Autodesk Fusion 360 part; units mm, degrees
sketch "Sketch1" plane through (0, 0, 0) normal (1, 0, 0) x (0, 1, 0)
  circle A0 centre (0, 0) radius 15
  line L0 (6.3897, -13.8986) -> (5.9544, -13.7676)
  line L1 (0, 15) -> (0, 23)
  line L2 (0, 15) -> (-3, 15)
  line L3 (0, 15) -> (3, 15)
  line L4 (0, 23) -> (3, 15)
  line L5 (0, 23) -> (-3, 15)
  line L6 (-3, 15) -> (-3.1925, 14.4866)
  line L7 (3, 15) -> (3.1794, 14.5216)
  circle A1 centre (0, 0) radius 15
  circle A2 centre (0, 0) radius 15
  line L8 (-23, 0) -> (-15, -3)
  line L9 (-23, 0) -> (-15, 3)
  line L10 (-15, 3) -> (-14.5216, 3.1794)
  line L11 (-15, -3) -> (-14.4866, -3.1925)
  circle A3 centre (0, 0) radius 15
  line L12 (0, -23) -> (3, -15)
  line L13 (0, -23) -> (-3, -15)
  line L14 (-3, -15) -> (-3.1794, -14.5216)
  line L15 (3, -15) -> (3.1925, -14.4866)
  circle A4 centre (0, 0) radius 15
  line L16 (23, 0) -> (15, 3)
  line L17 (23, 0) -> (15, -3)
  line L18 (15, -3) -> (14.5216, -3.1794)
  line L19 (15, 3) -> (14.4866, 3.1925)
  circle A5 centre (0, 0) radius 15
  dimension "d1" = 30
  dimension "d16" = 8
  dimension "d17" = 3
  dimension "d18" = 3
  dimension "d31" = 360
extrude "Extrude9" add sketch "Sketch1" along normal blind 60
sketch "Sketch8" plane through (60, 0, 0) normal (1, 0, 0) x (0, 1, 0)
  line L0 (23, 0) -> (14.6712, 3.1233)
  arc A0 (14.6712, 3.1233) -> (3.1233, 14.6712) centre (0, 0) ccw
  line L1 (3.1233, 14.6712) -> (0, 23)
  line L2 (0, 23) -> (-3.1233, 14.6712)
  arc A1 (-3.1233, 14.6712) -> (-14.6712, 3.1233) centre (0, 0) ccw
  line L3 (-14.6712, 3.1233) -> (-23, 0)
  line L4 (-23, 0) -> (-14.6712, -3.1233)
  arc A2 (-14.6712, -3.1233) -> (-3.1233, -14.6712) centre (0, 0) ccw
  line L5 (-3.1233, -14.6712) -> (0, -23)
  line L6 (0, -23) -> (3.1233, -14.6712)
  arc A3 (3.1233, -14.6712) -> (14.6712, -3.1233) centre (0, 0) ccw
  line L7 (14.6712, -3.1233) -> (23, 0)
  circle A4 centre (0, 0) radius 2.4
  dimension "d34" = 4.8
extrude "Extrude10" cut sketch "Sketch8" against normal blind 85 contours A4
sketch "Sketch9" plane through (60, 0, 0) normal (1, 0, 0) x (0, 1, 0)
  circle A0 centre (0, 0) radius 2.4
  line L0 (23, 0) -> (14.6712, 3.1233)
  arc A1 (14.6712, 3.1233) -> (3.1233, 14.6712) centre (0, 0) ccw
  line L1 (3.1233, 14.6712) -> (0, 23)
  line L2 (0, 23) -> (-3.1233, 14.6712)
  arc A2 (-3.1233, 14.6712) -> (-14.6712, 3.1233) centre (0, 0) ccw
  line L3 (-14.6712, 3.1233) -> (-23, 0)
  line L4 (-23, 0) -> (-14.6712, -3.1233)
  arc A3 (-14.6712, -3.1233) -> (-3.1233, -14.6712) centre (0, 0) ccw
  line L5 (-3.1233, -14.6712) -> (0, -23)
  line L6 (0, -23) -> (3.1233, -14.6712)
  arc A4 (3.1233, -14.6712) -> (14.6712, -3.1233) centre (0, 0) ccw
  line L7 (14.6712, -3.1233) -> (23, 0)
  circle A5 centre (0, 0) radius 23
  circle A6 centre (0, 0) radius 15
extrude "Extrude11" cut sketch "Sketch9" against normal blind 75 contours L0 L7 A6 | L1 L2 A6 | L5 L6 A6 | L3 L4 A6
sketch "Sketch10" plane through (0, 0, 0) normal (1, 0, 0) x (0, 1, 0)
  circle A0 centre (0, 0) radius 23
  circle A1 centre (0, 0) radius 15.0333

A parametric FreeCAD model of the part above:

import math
import FreeCAD as App
import Part
import Sketcher

V = App.Vector
Q = App.Units.Quantity

doc = App.newDocument("Part")
body = doc.addObject("PartDesign::Body", "Body")

# Sketch on YZ plane
sketch1 = body.newObject("Sketcher::SketchObject", "Sketch")
sketch1.AttachmentSupport = (doc.getObject("YZ_Plane"), [""])
sketch1.MapMode = "FlatFace"
sketch1.addGeometry([
    Part.LineSegment(V(14.671233, -3.123288, 0), V(23, 0, 0)),  # 0
    Part.LineSegment(V(23, 0, 0), V(15, 3, 0)),  # 1
    Part.LineSegment(V(15, 3, 0), V(14.671237, 3.12327, 0)),  # 2
    Part.ArcOfCircle(Part.Circle(V(0, 0, 0), V(0, 0, 1), 15), math.radians(12.017944), math.radians(77.981988)),  # 3
    Part.LineSegment(V(3.123288, 14.671233, 0), V(0, 23, 0)),  # 4
    Part.LineSegment(V(0, 23, 0), V(-3, 15, 0)),  # 5
    Part.LineSegment(V(-3, 15, 0), V(-3.12327, 14.671237, 0)),  # 6
    Part.ArcOfCircle(Part.Circle(V(0, 0, 0), V(0, 0, 1), 15), math.radians(102.017944), math.radians(167.981988)),  # 7
    Part.LineSegment(V(-14.671233, 3.123288, 0), V(-23, 0, 0)),  # 8
    Part.LineSegment(V(-23, 0, 0), V(-15, -3, 0)),  # 9
    Part.LineSegment(V(-15, -3, 0), V(-14.671237, -3.12327, 0)),  # 10
    Part.ArcOfCircle(Part.Circle(V(0, 0, 0), V(0, 0, 1), 15), math.radians(-167.982056), math.radians(-102.018012)),  # 11
    Part.LineSegment(V(-3.123288, -14.671233, 0), V(0, -23, 0)),  # 12
    Part.LineSegment(V(0, -23, 0), V(3, -15, 0)),  # 13
    Part.LineSegment(V(3, -15, 0), V(3.12327, -14.671237, 0)),  # 14
    Part.ArcOfCircle(Part.Circle(V(0, 0, 0), V(0, 0, 1), 15), math.radians(-77.982056), math.radians(-12.018012)),  # 15
], False)
sketch1.addConstraint([
    Sketcher.Constraint("Coincident", 0, 2, 1, 1),
    Sketcher.Constraint("Coincident", 1, 2, 2, 1),
    Sketcher.Constraint("Coincident", 2, 2, 3, 1),
    Sketcher.Constraint("Coincident", 3, 2, 4, 1),
    Sketcher.Constraint("Coincident", 4, 2, 5, 1),
    Sketcher.Constraint("Coincident", 5, 2, 6, 1),
    Sketcher.Constraint("Coincident", 6, 2, 7, 1),
    Sketcher.Constraint("Coincident", 7, 2, 8, 1),
    Sketcher.Constraint("Coincident", 8, 2, 9, 1),
    Sketcher.Constraint("Coincident", 9, 2, 10, 1),
    Sketcher.Constraint("Coincident", 10, 2, 11, 1),
    Sketcher.Constraint("Coincident", 11, 2, 12, 1),
    Sketcher.Constraint("Coincident", 12, 2, 13, 1),
    Sketcher.Constraint("Coincident", 13, 2, 14, 1),
    Sketcher.Constraint("Coincident", 14, 2, 15, 1),
    Sketcher.Constraint("Coincident", 15, 2, 0, 1),
    Sketcher.Constraint("Coincident", 3, 3, -1, 1),
    Sketcher.Constraint("Coincident", 7, 3, -1, 1),
    Sketcher.Constraint("Coincident", 11, 3, -1, 1),
    Sketcher.Constraint("Coincident", 15, 3, -1, 1),
    Sketcher.Constraint("Equal", 3, 7),
    Sketcher.Constraint("Equal", 7, 11),
    Sketcher.Constraint("Equal", 11, 15),
    Sketcher.Constraint("Symmetric", 0, 2, 8, 2, -1, 1),
    Sketcher.Constraint("Symmetric", 1, 2, 9, 2, -1, 1),
    Sketcher.Constraint("Symmetric", 4, 2, 12, 2, -1, 1),
    Sketcher.Constraint("Symmetric", 5, 2, 13, 2, -1, 1),
    Sketcher.Constraint("PointOnObject", 0, 2, -1),
    Sketcher.Constraint("PointOnObject", 4, 2, -2),
    Sketcher.Constraint("Parallel", 1, 2),
    Sketcher.Constraint("Perpendicular", 0, 4),
    Sketcher.Constraint("Perpendicular", 2, 5),
    Sketcher.Constraint("Parallel", 5, 6),
    Sketcher.Constraint("Perpendicular", 4, 8),
    Sketcher.Constraint("Parallel", 9, 10),
    Sketcher.Constraint("Perpendicular", 8, 12),
    Sketcher.Constraint("Parallel", 13, 14),
    Sketcher.Constraint("Horizontal", 3, 2, 6, 2),
    Sketcher.Constraint("Equal", 0, 4),
    Sketcher.Constraint("Equal", 1, 5),
    Sketcher.Constraint("Radius", 3, Q("15 mm")),
    Sketcher.Constraint("DistanceY", -1, 1, 1, 2, Q("3 mm")),
    Sketcher.Constraint("DistanceX", 1, 2, 0, 2, Q("8 mm")),
    Sketcher.Constraint("DistanceX", -1, 1, 0, 2, Q("23 mm")),
])
pad1 = body.newObject("PartDesign::Pad", "Pad")
pad1.Profile = sketch1
pad1.Length = 60

# Sketch on YZ plane
sketch2 = body.newObject("Sketcher::SketchObject", "Sketch001")
sketch2.AttachmentSupport = (doc.getObject("YZ_Plane"), [""])
sketch2.MapMode = "FlatFace"
sketch2.AttachmentOffset = App.Placement(V(0, 0, 60), App.Rotation())
sketch2.addGeometry(Part.Circle(V(0, 0, 0), V(0, 0, 1), 2.4), False)
sketch2.addConstraint([
    Sketcher.Constraint("Coincident", 0, 3, -1, 1),
    Sketcher.Constraint("Diameter", 0, Q("4.8 mm")),
])
pocket1 = body.newObject("PartDesign::Pocket", "Pocket")
pocket1.Profile = sketch2
pocket1.Length = 85

# Sketch on YZ plane
sketch3 = body.newObject("Sketcher::SketchObject", "Sketch002")
sketch3.AttachmentSupport = (doc.getObject("YZ_Plane"), [""])
sketch3.MapMode = "FlatFace"
sketch3.AttachmentOffset = App.Placement(V(0, 0, 60), App.Rotation())
sketch3.addGeometry([
    Part.LineSegment(V(14.6712, -3.1233, 0), V(23, 0, 0)),  # 0
    Part.LineSegment(V(23, 0, 0), V(14.6712, 3.1233, 0)),  # 1
    Part.ArcOfCircle(Part.Circle(V(0, 0, 0), V(0, 0, 1), 15), math.radians(-12.018084), math.radians(12.018084)),  # 2
    Part.LineSegment(V(3.1233, 14.6712, 0), V(0, 23, 0)),  # 3
    Part.LineSegment(V(0, 23, 0), V(-3.1233, 14.6712, 0)),  # 4
    Part.ArcOfCircle(Part.Circle(V(0, 0, 0), V(0, 0, 1), 15), math.radians(77.981916), math.radians(102.018084)),  # 5
    Part.LineSegment(V(-3.1233, -14.6712, 0), V(0, -23, 0)),  # 6
    Part.LineSegment(V(0, -23, 0), V(3.1233, -14.6712, 0)),  # 7
    Part.ArcOfCircle(Part.Circle(V(0, 0, 0), V(0, 0, 1), 15), math.radians(-102.018084), math.radians(-77.981916)),  # 8
    Part.LineSegment(V(-14.6712, 3.1233, 0), V(-23, 0, 0)),  # 9
    Part.LineSegment(V(-23, 0, 0), V(-14.6712, -3.1233, 0)),  # 10
    Part.ArcOfCircle(Part.Circle(V(0, 0, 0), V(0, 0, 1), 15), math.radians(167.981916), math.radians(192.018084)),  # 11
], False)
sketch3.addConstraint([
    Sketcher.Constraint("Coincident", 0, 2, 1, 1),
    Sketcher.Constraint("Coincident", 1, 2, 2, 2),
    Sketcher.Constraint("Coincident", 2, 1, 0, 1),
    Sketcher.Constraint("Coincident", 3, 2, 4, 1),
    Sketcher.Constraint("Coincident", 4, 2, 5, 2),
    Sketcher.Constraint("Coincident", 5, 1, 3, 1),
    Sketcher.Constraint("Coincident", 6, 2, 7, 1),
    Sketcher.Constraint("Coincident", 7, 2, 8, 2),
    Sketcher.Constraint("Coincident", 8, 1, 6, 1),
    Sketcher.Constraint("Coincident", 9, 2, 10, 1),
    Sketcher.Constraint("Coincident", 10, 2, 11, 2),
    Sketcher.Constraint("Coincident", 11, 1, 9, 1),
    Sketcher.Constraint("Coincident", 2, 3, -1, 1),
    Sketcher.Constraint("Coincident", 5, 3, -1, 1),
    Sketcher.Constraint("Coincident", 8, 3, -1, 1),
    Sketcher.Constraint("Coincident", 11, 3, -1, 1),
    Sketcher.Constraint("Equal", 2, 5),
    Sketcher.Constraint("Equal", 5, 8),
    Sketcher.Constraint("Equal", 8, 11),
    Sketcher.Constraint("Symmetric", 3, 2, 6, 2, -1, 1),
    Sketcher.Constraint("Symmetric", 0, 2, 9, 2, -1, 1),
    Sketcher.Constraint("PointOnObject", 0, 2, -1),
    Sketcher.Constraint("PointOnObject", 3, 2, -2),
    Sketcher.Constraint("Perpendicular", 0, 3),
    Sketcher.Constraint("Perpendicular", 1, 4),
    Sketcher.Constraint("Parallel", 3, 6),
    Sketcher.Constraint("Parallel", 4, 7),
    Sketcher.Constraint("Perpendicular", 6, 9),
    Sketcher.Constraint("Perpendicular", 7, 10),
    Sketcher.Constraint("Horizontal", 4, 2, 5, 1),
    Sketcher.Constraint("Equal", 1, 3),
    Sketcher.Constraint("Radius", 2, Q("15 mm")),
    Sketcher.Constraint("DistanceX", -1, 1, 0, 2, Q("23 mm")),
    Sketcher.Constraint("Distance", 0, Q("8.8952 mm")),
])
pocket2 = body.newObject("PartDesign::Pocket", "Pocket001")
pocket2.Profile = sketch3
pocket2.Length = 75

doc.recompute()
